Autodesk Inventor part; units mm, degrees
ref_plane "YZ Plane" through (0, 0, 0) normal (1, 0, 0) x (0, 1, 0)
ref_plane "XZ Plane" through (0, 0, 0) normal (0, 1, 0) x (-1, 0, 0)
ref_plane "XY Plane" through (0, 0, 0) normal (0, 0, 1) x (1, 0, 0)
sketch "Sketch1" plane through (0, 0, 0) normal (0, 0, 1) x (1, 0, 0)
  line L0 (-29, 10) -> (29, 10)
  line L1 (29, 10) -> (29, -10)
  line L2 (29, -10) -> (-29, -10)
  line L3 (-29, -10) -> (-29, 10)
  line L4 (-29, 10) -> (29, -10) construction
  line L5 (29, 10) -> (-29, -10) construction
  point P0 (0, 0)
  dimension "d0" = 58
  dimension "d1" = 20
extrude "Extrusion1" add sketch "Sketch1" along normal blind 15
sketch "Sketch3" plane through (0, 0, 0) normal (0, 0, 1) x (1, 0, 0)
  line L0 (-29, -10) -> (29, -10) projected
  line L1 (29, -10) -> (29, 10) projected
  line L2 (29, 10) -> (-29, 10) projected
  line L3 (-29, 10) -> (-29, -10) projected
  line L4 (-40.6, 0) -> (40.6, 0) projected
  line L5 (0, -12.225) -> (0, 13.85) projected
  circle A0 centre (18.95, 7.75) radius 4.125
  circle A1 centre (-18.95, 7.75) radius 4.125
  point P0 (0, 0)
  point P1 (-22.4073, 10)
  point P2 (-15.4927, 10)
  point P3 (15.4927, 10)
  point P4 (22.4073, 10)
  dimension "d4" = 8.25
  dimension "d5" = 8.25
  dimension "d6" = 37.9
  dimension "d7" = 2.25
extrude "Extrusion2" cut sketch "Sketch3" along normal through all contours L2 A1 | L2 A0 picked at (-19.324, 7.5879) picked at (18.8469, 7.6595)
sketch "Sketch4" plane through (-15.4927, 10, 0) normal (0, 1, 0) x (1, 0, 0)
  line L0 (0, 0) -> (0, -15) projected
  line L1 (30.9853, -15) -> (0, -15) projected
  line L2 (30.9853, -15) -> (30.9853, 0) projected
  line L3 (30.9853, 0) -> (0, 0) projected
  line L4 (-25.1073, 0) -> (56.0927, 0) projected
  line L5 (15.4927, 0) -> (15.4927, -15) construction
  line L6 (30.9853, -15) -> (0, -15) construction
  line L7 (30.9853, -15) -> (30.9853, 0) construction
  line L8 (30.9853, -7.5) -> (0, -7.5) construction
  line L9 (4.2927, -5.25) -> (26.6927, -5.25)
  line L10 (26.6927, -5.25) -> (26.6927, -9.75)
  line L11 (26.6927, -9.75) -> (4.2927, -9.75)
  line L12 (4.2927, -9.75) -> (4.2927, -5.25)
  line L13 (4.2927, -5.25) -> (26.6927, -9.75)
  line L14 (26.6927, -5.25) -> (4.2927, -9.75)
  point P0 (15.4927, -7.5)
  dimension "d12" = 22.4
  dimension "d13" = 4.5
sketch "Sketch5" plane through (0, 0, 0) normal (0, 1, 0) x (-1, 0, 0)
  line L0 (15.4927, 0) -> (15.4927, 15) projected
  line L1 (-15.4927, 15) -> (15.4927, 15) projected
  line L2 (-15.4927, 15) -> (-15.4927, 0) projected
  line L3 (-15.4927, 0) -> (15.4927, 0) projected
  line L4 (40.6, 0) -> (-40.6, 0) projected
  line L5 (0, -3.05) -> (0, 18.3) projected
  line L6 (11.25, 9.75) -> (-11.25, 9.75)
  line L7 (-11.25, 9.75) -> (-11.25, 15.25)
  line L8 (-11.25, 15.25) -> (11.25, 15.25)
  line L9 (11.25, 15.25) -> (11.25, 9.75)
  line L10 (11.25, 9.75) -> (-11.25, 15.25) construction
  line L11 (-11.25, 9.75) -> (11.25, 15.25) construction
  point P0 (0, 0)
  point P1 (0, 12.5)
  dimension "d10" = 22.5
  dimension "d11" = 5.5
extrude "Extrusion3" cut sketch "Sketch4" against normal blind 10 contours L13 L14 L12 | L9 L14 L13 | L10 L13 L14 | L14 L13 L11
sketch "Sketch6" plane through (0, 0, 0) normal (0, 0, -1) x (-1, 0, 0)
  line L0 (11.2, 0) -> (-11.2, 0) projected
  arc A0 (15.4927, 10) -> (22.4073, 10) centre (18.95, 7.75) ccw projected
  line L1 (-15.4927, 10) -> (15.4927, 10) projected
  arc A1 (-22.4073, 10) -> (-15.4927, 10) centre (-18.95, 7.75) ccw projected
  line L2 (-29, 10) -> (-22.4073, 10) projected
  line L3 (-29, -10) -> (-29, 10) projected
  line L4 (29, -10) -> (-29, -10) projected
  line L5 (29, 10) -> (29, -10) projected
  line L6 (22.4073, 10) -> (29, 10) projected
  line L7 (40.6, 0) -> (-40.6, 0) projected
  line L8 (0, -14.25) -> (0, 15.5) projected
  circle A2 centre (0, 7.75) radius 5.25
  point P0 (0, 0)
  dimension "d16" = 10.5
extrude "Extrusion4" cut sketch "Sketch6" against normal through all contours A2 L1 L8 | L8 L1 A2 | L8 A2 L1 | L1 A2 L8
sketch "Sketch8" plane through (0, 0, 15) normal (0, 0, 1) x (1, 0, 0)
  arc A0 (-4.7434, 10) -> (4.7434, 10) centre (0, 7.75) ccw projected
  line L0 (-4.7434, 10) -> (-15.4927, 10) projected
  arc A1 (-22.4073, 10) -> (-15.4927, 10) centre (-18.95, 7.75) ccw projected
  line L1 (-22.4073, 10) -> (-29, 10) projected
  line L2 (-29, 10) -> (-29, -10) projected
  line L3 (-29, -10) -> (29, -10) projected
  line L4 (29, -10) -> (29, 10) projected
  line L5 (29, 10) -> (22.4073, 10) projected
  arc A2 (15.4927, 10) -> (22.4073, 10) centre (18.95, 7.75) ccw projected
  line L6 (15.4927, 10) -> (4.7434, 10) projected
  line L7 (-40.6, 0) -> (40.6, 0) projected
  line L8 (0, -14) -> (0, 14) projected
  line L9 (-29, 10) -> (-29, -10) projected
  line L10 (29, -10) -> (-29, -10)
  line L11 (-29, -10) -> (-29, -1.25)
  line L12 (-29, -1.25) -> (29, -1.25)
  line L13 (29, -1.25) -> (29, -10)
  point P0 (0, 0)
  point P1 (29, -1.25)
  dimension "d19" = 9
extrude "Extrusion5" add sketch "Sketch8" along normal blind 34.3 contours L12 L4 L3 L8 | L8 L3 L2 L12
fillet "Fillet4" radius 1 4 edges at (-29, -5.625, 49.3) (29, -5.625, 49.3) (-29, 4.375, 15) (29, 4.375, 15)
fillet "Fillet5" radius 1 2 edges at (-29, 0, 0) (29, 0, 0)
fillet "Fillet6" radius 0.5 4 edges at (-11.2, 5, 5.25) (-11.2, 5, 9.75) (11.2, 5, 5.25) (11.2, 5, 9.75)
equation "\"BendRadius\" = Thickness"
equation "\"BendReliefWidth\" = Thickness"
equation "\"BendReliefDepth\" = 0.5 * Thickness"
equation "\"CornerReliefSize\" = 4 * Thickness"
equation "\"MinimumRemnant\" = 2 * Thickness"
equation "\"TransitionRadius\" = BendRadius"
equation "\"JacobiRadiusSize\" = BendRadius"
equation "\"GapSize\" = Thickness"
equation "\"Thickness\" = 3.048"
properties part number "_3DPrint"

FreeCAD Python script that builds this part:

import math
import FreeCAD as App
import Part
import Sketcher
from FreeCAD import Vector
Q = App.Units.Quantity


def edges_at(feature, points):
    """Names of the edges that pass closest to the given points."""
    edges = feature.Shape.Edges
    near = lambda p: min(range(len(edges)), key=lambda i: edges[i].distToShape(Part.Vertex(*p))[0])
    return sorted({f"Edge{near(p) + 1}" for p in points})

doc = App.newDocument("Part")
body = doc.addObject("PartDesign::Body", "Body")

# Sketch on XY plane
sketch1 = doc.addObject("Sketcher::SketchObject", "Sketch")
body.addObject(sketch1)
sketch1.AttachmentSupport = (doc.XY_Plane, [""])
sketch1.MapMode = "FlatFace"
sketch1.addGeometry([
    Part.LineSegment(Vector(29, 10, 0), Vector(-29, 10, 0)),
    Part.LineSegment(Vector(-29, 10, 0), Vector(-29, -10, 0)),
    Part.LineSegment(Vector(-29, -10, 0), Vector(29, -10, 0)),
    Part.LineSegment(Vector(29, -10, 0), Vector(29, 10, 0)),
], False)
sketch1.addConstraint([
    Sketcher.Constraint("Coincident", 0, 2, 1, 1),
    Sketcher.Constraint("Coincident", 1, 2, 2, 1),
    Sketcher.Constraint("Coincident", 2, 2, 3, 1),
    Sketcher.Constraint("Coincident", 3, 2, 0, 1),
    Sketcher.Constraint("Horizontal", 0),
    Sketcher.Constraint("Vertical", 1),
    Sketcher.Constraint("Horizontal", 2),
    Sketcher.Constraint("Vertical", 3),
    Sketcher.Constraint("Symmetric", 0, 2, 2, 2, -1, 1),
    Sketcher.Constraint("DistanceX", 0, 2, 0, 1, Q("58 mm")),
    Sketcher.Constraint("DistanceY", 1, 2, 1, 1, Q("20 mm")),
])
pad1 = doc.addObject("PartDesign::Pad", "Pad")
body.addObject(pad1)
pad1.Profile = sketch1
pad1.Length = 15

# Sketch on XY plane
sketch2 = doc.addObject("Sketcher::SketchObject", "Sketch001")
body.addObject(sketch2)
sketch2.AttachmentSupport = (doc.XY_Plane, [""])
sketch2.MapMode = "FlatFace"
sketch2.addGeometry([
    Part.LineSegment(Vector(-15.5, 10, 0), Vector(-22.4, 10, 0)),
    Part.ArcOfCircle(Part.Circle(Vector(-18.9, 7.8, 0), Vector(0, 0, 1), 4.1), math.radians(147), math.radians(393)),
    Part.LineSegment(Vector(22.4, 10, 0), Vector(15.5, 10, 0)),
    Part.ArcOfCircle(Part.Circle(Vector(18.9, 7.8, 0), Vector(0, 0, 1), 4.1), math.radians(147), math.radians(393)),
], False)
sketch2.addConstraint([
    Sketcher.Constraint("Coincident", 0, 1, 1, 2),
    Sketcher.Constraint("Coincident", 1, 1, 0, 2),
    Sketcher.Constraint("Coincident", 2, 1, 3, 2),
    Sketcher.Constraint("Coincident", 3, 1, 2, 2),
    Sketcher.Constraint("Horizontal", 0),
    Sketcher.Constraint("Horizontal", 2),
    Sketcher.Constraint("Equal", 1, 3),
    Sketcher.Constraint("Symmetric", 1, 3, 3, 3, -2),
    Sketcher.Constraint("Horizontal", 1, 1, 2, 1),
    Sketcher.Constraint("Radius", 1, Q("4.125 mm")),
    Sketcher.Constraint("DistanceX", 1, 3, 3, 3, Q("37.9 mm")),
    Sketcher.Constraint("DistanceY", 1, 3, 0, 1, Q("2.25 mm")),
    Sketcher.Constraint("DistanceY", -1, 1, 0, 1, Q("10 mm")),
])
pocket1 = doc.addObject("PartDesign::Pocket", "Pocket")
body.addObject(pocket1)
pocket1.Profile = sketch2
pocket1.Type = "ThroughAll"
pocket1.Reversed = True

# Sketch on XZ plane
sketch3 = doc.addObject("Sketcher::SketchObject", "Sketch002")
body.addObject(sketch3)
sketch3.AttachmentSupport = (doc.XZ_Plane, [""])
sketch3.MapMode = "FlatFace"
sketch3.AttachmentOffset = App.Placement(Vector(0, 0, -10), App.Rotation())
sketch3.addGeometry([
    Part.LineSegment(Vector(-11.2, 5.2, 0), Vector(-11.2, 9.8, 0)),
    Part.LineSegment(Vector(-11.2, 9.8, 0), Vector(11.2, 9.8, 0)),
    Part.LineSegment(Vector(11.2, 9.8, 0), Vector(11.2, 5.2, 0)),
    Part.LineSegment(Vector(11.2, 5.2, 0), Vector(-11.2, 5.2, 0)),
], False)
sketch3.addConstraint([
    Sketcher.Constraint("Coincident", 0, 2, 1, 1),
    Sketcher.Constraint("Coincident", 1, 2, 2, 1),
    Sketcher.Constraint("Coincident", 2, 2, 3, 1),
    Sketcher.Constraint("Coincident", 3, 2, 0, 1),
    Sketcher.Constraint("Vertical", 0),
    Sketcher.Constraint("Horizontal", 1),
    Sketcher.Constraint("Vertical", 2),
    Sketcher.Constraint("Horizontal", 3),
    Sketcher.Constraint("DistanceX", 1, 1, 1, 2, Q("22.4 mm")),
    Sketcher.Constraint("DistanceY", 0, 1, 0, 2, Q("4.5 mm")),
    Sketcher.Constraint("DistanceX", 0, 2, -1, 1, Q("11.2 mm")),
    Sketcher.Constraint("DistanceY", -1, 1, 0, 2, Q("9.75 mm")),
])
pocket2 = doc.addObject("PartDesign::Pocket", "Pocket001")
body.addObject(pocket2)
pocket2.Profile = sketch3
pocket2.Length = 10
pocket2.Reversed = True

# Sketch on XY plane
sketch4 = doc.addObject("Sketcher::SketchObject", "Sketch003")
body.addObject(sketch4)
sketch4.AttachmentSupport = (doc.XY_Plane, [""])
sketch4.MapMode = "FlatFace"
sketch4.addGeometry(Part.Circle(Vector(0, 8, 0), Vector(0, 0, 1), 5), False)
sketch4.addConstraint([
    Sketcher.Constraint("PointOnObject", 0, 3, -2),
    Sketcher.Constraint("Diameter", 0, Q("10.5 mm")),
    Sketcher.Constraint("DistanceY", -1, 1, 0, 3, Q("7.75 mm")),
])
pocket3 = doc.addObject("PartDesign::Pocket", "Pocket002")
body.addObject(pocket3)
pocket3.Profile = sketch4
pocket3.Type = "ThroughAll"
pocket3.Reversed = True

# Sketch on XY plane
sketch5 = doc.addObject("Sketcher::SketchObject", "Sketch004")
body.addObject(sketch5)
sketch5.AttachmentSupport = (doc.XY_Plane, [""])
sketch5.MapMode = "FlatFace"
sketch5.AttachmentOffset = App.Placement(Vector(0, 0, 15), App.Rotation())
sketch5.addGeometry([
    Part.LineSegment(Vector(29, -1, 0), Vector(-29, -1, 0)),
    Part.LineSegment(Vector(-29, -1, 0), Vector(-29, -10, 0)),
    Part.LineSegment(Vector(-29, -10, 0), Vector(29, -10, 0)),
    Part.LineSegment(Vector(29, -10, 0), Vector(29, -1, 0)),
], False)
sketch5.addConstraint([
    Sketcher.Constraint("Coincident", 0, 2, 1, 1),
    Sketcher.Constraint("Coincident", 1, 2, 2, 1),
    Sketcher.Constraint("Coincident", 2, 2, 3, 1),
    Sketcher.Constraint("Coincident", 3, 2, 0, 1),
    Sketcher.Constraint("Horizontal", 0),
    Sketcher.Constraint("Vertical", 1),
    Sketcher.Constraint("Horizontal", 2),
    Sketcher.Constraint("Vertical", 3),
    Sketcher.Constraint("DistanceX", 0, 2, 0, 1, Q("58 mm")),
    Sketcher.Constraint("DistanceX", 0, 2, -1, 1, Q("29 mm")),
    Sketcher.Constraint("DistanceY", 1, 2, -1, 1, Q("10 mm")),
    Sketcher.Constraint("DistanceY", 1, 2, 1, 1, Q("8.75 mm")),
])
pad2 = doc.addObject("PartDesign::Pad", "Pad001")
body.addObject(pad2)
pad2.Profile = sketch5
pad2.Length = 34.3
doc.recompute()

fillet = doc.addObject("PartDesign::Fillet", "Fillet")
body.addObject(fillet)
fillet.Base = (pad2, edges_at(pad2, [
    (-29, -5.625, 49.3),
    (29, -5.625, 49.3),
    (-29, 4.375, 15),
    (29, 4.375, 15),
]))
fillet.Radius = 1
doc.recompute()

fillet2 = doc.addObject("PartDesign::Fillet", "Fillet001")
body.addObject(fillet2)
fillet2.Base = (fillet, edges_at(fillet, [(-29, 0, 0), (29, 0, 0)]))
fillet2.Radius = 1
doc.recompute()

fillet3 = doc.addObject("PartDesign::Fillet", "Fillet002")
body.addObject(fillet3)
fillet3.Base = (fillet2, edges_at(fillet2, [
    (-11.2, 5, 5.25),
    (-11.2, 5, 9.75),
    (11.2, 5, 5.25),
    (11.2, 5, 9.75),
]))
fillet3.Radius = 0.5

doc.recompute()
